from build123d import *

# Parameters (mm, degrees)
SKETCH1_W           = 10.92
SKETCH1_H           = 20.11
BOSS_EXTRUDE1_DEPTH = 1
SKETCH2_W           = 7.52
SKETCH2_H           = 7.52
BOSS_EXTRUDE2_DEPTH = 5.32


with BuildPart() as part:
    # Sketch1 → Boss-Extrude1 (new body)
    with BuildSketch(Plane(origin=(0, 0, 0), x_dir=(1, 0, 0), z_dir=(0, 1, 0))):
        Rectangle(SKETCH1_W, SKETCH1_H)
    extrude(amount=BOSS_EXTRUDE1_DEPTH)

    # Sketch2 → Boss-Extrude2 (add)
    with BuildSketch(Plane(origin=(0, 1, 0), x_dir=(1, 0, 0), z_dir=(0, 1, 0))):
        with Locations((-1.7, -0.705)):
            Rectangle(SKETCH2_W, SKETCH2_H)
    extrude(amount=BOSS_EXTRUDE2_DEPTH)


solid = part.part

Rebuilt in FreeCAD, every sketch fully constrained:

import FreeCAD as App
import Part
import Sketcher
from FreeCAD import Vector


def add_polygon(sketch, points):
    """Adds a closed chain of lines whose ends are joined by coincident constraints."""
    first, n = sketch.GeometryCount, len(points)
    for a, b in zip(points, points[1:] + points[:1]):
        sketch.addGeometry(Part.LineSegment(App.Vector(*a, 0), App.Vector(*b, 0)), False)
    for i in range(n):
        sketch.addConstraint(Sketcher.Constraint("Coincident", first + i, 2, first + (i + 1) % n, 1))

doc = App.newDocument("Part")
body = doc.addObject("PartDesign::Body", "Body")

# Sketch on XZ plane
sketch1 = body.newObject("Sketcher::SketchObject", "Sketch")
sketch1.AttachmentSupport = (doc.getObject("XZ_Plane"), [""])
sketch1.MapMode = "FlatFace"
add_polygon(sketch1, [(-5.46, -10.055), (-5.46, 10.055), (5.46, 10.055), (5.46, -10.055)])  # lines 0-3
sketch1.addConstraint([
    Sketcher.Constraint("Vertical", 0),
    Sketcher.Constraint("Horizontal", 1),
    Sketcher.Constraint("Vertical", 2),
    Sketcher.Constraint("Horizontal", 3),
    Sketcher.Constraint("Symmetric", 0, 2, 2, 2, -1, 1),
    Sketcher.Constraint("DistanceX", 1, 1, 1, 2, 10.92),
    Sketcher.Constraint("DistanceY", 0, 1, 0, 2, 20.11),
])
pad1 = body.newObject("PartDesign::Pad", "Pad")
pad1.Profile = sketch1
pad1.Length = 1
pad1.Reversed = True

# Sketch on XZ plane
sketch2 = body.newObject("Sketcher::SketchObject", "Sketch001")
sketch2.AttachmentSupport = (doc.getObject("XZ_Plane"), [""])
sketch2.MapMode = "FlatFace"
sketch2.AttachmentOffset = App.Placement(Vector(0, 0, -1), App.Rotation())
add_polygon(sketch2, [(-5.46, -3.055), (-5.46, 4.465), (2.06, 4.465), (2.06, -3.055)])  # lines 0-3
sketch2.addConstraint([
    Sketcher.Constraint("Vertical", 0),
    Sketcher.Constraint("Horizontal", 1),
    Sketcher.Constraint("Vertical", 2),
    Sketcher.Constraint("Horizontal", 3),
    Sketcher.Constraint("Equal", 3, 0),
    Sketcher.Constraint("DistanceX", 1, 1, 1, 2, 7.52),
    Sketcher.Constraint("DistanceX", 0, 2, -1, 1, 5.46),
    Sketcher.Constraint("DistanceY", -1, 1, 0, 2, 4.465),
])
pad2 = body.newObject("PartDesign::Pad", "Pad001")
pad2.Profile = sketch2
pad2.Length = 5.32
pad2.Reversed = True

doc.recompute()
